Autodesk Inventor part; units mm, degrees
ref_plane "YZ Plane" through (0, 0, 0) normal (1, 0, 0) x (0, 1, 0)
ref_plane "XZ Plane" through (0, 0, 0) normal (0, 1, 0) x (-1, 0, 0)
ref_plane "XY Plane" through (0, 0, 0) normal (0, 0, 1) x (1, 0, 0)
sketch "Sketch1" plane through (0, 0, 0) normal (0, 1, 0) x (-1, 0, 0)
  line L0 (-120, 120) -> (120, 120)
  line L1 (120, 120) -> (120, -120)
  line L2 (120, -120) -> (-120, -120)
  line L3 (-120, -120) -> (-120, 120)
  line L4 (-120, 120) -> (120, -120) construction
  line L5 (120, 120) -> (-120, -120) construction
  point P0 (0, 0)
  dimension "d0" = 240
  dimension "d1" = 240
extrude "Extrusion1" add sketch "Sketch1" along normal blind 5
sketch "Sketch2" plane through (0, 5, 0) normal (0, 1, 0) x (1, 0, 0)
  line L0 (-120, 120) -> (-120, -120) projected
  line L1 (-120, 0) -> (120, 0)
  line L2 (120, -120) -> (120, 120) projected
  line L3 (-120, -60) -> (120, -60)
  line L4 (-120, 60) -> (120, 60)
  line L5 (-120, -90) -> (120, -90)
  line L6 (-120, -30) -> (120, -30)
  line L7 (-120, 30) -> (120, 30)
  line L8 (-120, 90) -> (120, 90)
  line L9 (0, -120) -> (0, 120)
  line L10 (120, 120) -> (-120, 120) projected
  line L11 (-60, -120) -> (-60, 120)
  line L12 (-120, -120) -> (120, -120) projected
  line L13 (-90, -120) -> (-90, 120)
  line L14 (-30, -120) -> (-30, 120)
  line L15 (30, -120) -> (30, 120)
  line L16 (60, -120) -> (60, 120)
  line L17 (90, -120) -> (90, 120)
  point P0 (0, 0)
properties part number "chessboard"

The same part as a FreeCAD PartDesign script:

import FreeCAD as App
import Part
import Sketcher
from FreeCAD import Vector
Q = App.Units.Quantity


def add_polygon(sketch, points):
    """Adds a closed chain of lines whose ends are joined by coincident constraints."""
    first, n = sketch.GeometryCount, len(points)
    for a, b in zip(points, points[1:] + points[:1]):
        sketch.addGeometry(Part.LineSegment(App.Vector(*a, 0), App.Vector(*b, 0)), False)
    for i in range(n):
        sketch.addConstraint(Sketcher.Constraint("Coincident", first + i, 2, first + (i + 1) % n, 1))

doc = App.newDocument("Part")
params = doc.addObject("Spreadsheet::Sheet", "Params")
for row, (alias, value) in enumerate([
    ("sketch1_width", "240 mm"),
    ("pad1_length", "5 mm"),
], start=1):
    params.set(f"A{row}", alias)
    params.set(f"B{row}", "=" + value)
    params.setAlias(f"B{row}", alias)

body = doc.addObject("PartDesign::Body", "Body")

# Sketch on XZ plane
sketch1 = body.newObject("Sketcher::SketchObject", "Sketch")
sketch1.AttachmentSupport = (doc.getObject("XZ_Plane"), [""])
sketch1.MapMode = "FlatFace"
add_polygon(sketch1, [(-120, 120), (120, 120), (120, -120), (-120, -120)])  # lines 0-3
sketch1.addConstraint([
    Sketcher.Constraint("Horizontal", 0),
    Sketcher.Constraint("Vertical", 1),
    Sketcher.Constraint("Horizontal", 2),
    Sketcher.Constraint("Vertical", 3),
    Sketcher.Constraint("Symmetric", 0, 2, 2, 2, -1, 1),
    Sketcher.Constraint("Equal", 2, 1),
    Sketcher.Constraint("DistanceX", 0, 1, 0, 2, Q("240 mm")),
])
sketch1.setExpression("Constraints[10]", "Params.sketch1_width")
pad1 = body.newObject("PartDesign::Pad", "Pad")
pad1.Profile = sketch1
pad1.setExpression("Length", "Params.pad1_length")
pad1.Reversed = True

doc.recompute()
